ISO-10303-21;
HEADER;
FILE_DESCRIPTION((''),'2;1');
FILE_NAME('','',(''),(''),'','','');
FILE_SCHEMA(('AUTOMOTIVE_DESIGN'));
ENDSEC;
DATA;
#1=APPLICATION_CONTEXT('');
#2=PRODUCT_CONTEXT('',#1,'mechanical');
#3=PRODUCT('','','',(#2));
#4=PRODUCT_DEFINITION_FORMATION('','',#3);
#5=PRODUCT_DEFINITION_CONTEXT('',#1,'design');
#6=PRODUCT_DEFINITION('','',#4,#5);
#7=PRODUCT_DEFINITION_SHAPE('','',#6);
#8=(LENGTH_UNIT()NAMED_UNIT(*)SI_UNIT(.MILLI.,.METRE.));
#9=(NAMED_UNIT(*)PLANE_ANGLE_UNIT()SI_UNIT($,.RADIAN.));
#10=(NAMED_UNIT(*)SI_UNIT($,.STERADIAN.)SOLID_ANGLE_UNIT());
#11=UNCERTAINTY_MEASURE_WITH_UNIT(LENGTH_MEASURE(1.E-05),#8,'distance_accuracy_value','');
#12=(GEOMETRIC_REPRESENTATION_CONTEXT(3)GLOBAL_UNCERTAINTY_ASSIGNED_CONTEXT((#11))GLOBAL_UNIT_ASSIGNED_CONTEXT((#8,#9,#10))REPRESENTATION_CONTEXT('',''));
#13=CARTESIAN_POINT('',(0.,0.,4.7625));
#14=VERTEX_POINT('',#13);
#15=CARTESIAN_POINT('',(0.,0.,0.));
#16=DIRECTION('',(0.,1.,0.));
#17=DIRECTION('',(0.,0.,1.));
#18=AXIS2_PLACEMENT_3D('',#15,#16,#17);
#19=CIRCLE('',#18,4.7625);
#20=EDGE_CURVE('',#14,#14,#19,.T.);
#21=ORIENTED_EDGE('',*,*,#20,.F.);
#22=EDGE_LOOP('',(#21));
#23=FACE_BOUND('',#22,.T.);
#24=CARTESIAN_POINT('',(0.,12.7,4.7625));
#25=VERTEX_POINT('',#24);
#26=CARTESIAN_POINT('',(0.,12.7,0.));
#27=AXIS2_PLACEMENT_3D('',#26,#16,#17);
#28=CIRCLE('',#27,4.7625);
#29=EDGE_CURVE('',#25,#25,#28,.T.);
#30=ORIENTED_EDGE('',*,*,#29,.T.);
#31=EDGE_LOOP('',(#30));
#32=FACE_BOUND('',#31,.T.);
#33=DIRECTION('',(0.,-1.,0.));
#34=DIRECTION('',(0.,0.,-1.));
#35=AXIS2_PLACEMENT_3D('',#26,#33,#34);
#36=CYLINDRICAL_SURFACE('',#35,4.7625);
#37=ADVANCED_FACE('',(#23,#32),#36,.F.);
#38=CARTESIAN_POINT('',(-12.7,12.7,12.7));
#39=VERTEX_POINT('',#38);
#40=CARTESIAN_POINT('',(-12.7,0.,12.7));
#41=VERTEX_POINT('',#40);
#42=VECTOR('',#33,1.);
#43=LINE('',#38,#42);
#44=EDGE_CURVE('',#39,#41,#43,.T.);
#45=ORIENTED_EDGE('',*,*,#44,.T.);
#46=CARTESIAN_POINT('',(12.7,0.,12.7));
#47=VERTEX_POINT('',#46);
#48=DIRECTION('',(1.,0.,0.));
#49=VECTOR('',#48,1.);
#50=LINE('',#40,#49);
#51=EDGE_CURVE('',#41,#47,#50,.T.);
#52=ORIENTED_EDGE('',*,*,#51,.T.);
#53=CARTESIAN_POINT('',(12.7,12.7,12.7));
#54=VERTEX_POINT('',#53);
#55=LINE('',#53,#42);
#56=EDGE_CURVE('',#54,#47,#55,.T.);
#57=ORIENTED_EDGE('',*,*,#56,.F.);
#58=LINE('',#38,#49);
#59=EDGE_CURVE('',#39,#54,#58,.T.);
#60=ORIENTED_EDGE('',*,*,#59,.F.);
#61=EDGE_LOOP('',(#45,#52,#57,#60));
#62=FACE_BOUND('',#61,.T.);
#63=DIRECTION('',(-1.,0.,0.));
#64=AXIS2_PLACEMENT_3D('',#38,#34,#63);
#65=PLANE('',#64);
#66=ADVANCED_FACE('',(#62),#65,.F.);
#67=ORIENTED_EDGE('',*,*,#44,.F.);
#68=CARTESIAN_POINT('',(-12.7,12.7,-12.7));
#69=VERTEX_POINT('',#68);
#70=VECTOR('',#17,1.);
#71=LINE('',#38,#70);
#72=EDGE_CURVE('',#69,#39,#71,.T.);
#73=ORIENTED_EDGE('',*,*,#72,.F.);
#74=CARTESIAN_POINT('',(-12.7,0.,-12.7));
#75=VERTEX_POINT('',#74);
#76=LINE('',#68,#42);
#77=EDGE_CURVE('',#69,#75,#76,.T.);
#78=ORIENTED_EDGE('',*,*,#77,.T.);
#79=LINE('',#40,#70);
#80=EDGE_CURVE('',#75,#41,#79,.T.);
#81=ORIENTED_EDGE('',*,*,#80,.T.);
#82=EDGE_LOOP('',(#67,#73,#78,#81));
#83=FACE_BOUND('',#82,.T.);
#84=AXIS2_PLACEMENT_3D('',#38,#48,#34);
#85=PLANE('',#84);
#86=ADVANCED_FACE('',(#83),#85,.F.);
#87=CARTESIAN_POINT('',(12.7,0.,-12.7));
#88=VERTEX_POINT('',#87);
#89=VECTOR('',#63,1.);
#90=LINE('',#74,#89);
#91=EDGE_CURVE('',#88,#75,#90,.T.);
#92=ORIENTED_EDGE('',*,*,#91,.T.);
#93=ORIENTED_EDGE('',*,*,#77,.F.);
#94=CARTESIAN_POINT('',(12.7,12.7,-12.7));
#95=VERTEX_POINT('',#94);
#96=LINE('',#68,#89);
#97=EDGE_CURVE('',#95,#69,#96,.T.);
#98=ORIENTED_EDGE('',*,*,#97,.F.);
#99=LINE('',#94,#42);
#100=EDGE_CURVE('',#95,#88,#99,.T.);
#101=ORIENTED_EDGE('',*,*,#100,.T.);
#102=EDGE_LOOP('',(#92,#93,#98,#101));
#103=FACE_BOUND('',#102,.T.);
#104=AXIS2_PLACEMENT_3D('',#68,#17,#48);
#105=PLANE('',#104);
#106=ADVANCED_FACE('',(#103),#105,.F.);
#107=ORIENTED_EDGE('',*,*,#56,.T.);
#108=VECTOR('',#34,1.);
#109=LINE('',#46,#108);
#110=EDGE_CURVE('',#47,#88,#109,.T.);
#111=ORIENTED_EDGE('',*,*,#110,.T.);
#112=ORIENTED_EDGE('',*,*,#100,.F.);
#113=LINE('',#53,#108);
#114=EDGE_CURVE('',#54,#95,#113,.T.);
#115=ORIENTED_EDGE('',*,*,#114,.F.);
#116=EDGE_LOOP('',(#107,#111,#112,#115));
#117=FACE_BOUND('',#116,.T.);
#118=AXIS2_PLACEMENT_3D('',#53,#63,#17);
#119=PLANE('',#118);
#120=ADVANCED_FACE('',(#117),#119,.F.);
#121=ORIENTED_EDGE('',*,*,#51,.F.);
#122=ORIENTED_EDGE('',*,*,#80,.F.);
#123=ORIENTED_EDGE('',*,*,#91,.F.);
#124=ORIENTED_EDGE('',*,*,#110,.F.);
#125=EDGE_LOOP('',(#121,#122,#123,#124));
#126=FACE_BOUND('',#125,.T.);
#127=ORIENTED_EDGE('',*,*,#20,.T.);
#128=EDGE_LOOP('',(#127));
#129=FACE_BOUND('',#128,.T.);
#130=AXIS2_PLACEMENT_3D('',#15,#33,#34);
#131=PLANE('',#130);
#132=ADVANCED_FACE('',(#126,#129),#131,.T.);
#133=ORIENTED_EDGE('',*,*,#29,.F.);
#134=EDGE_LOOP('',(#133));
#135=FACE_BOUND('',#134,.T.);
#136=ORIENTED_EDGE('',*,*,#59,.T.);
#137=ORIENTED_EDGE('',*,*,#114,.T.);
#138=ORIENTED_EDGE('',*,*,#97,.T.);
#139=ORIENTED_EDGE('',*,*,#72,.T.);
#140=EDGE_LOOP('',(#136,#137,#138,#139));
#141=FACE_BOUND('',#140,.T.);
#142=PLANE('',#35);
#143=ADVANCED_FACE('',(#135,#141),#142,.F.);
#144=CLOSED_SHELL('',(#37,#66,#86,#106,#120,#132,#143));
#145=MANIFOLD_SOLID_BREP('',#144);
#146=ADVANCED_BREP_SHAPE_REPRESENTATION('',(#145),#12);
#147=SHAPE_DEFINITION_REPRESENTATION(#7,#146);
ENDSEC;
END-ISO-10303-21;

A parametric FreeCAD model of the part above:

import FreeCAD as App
import Part
import Sketcher
Q = App.Units.Quantity

doc = App.newDocument("Part")
body = doc.addObject("PartDesign::Body", "Body")

# Sketch on XZ plane
sketch1 = body.newObject("Sketcher::SketchObject", "Sketch")
sketch1.AttachmentSupport = (doc.getObject("XZ_Plane"), [""])
sketch1.MapMode = "FlatFace"
sketch1.addGeometry(Part.LineSegment(App.Vector(-12.7, -12.7, 0), App.Vector(-12.7, 12.7, 0)), False)
sketch1.addGeometry(Part.LineSegment(App.Vector(-12.7, 12.7, 0), App.Vector(12.7, 12.7, 0)), False)
sketch1.addGeometry(Part.LineSegment(App.Vector(12.7, 12.7, 0), App.Vector(12.7, -12.7, 0)), False)
sketch1.addGeometry(Part.LineSegment(App.Vector(12.7, -12.7, 0), App.Vector(-12.7, -12.7, 0)), False)
sketch1.addGeometry(Part.Circle(App.Vector(0, 0, 0), App.Vector(0, 0, 1), 4.7625), False)
sketch1.addConstraint(Sketcher.Constraint("Coincident", 0, 2, 1, 1))
sketch1.addConstraint(Sketcher.Constraint("Coincident", 1, 2, 2, 1))
sketch1.addConstraint(Sketcher.Constraint("Coincident", 2, 2, 3, 1))
sketch1.addConstraint(Sketcher.Constraint("Coincident", 3, 2, 0, 1))
sketch1.addConstraint(Sketcher.Constraint("Vertical", 0))
sketch1.addConstraint(Sketcher.Constraint("Horizontal", 1))
sketch1.addConstraint(Sketcher.Constraint("Vertical", 2))
sketch1.addConstraint(Sketcher.Constraint("Horizontal", 3))
sketch1.addConstraint(Sketcher.Constraint("Coincident", 4, 3, -1, 1))
sketch1.addConstraint(Sketcher.Constraint("Symmetric", 0, 2, 2, 2, -1, 1))
sketch1.addConstraint(Sketcher.Constraint("Equal", 3, 0))
sketch1.addConstraint(Sketcher.Constraint("DistanceX", 1, 1, 1, 2, Q("1 in")))
sketch1.addConstraint(Sketcher.Constraint("Diameter", 4, Q("0.375 in")))
pad1 = body.newObject("PartDesign::Pad", "Pad")
pad1.Profile = sketch1
pad1.Length = Q("0.5 in")
pad1.Reversed = True

doc.recompute()
